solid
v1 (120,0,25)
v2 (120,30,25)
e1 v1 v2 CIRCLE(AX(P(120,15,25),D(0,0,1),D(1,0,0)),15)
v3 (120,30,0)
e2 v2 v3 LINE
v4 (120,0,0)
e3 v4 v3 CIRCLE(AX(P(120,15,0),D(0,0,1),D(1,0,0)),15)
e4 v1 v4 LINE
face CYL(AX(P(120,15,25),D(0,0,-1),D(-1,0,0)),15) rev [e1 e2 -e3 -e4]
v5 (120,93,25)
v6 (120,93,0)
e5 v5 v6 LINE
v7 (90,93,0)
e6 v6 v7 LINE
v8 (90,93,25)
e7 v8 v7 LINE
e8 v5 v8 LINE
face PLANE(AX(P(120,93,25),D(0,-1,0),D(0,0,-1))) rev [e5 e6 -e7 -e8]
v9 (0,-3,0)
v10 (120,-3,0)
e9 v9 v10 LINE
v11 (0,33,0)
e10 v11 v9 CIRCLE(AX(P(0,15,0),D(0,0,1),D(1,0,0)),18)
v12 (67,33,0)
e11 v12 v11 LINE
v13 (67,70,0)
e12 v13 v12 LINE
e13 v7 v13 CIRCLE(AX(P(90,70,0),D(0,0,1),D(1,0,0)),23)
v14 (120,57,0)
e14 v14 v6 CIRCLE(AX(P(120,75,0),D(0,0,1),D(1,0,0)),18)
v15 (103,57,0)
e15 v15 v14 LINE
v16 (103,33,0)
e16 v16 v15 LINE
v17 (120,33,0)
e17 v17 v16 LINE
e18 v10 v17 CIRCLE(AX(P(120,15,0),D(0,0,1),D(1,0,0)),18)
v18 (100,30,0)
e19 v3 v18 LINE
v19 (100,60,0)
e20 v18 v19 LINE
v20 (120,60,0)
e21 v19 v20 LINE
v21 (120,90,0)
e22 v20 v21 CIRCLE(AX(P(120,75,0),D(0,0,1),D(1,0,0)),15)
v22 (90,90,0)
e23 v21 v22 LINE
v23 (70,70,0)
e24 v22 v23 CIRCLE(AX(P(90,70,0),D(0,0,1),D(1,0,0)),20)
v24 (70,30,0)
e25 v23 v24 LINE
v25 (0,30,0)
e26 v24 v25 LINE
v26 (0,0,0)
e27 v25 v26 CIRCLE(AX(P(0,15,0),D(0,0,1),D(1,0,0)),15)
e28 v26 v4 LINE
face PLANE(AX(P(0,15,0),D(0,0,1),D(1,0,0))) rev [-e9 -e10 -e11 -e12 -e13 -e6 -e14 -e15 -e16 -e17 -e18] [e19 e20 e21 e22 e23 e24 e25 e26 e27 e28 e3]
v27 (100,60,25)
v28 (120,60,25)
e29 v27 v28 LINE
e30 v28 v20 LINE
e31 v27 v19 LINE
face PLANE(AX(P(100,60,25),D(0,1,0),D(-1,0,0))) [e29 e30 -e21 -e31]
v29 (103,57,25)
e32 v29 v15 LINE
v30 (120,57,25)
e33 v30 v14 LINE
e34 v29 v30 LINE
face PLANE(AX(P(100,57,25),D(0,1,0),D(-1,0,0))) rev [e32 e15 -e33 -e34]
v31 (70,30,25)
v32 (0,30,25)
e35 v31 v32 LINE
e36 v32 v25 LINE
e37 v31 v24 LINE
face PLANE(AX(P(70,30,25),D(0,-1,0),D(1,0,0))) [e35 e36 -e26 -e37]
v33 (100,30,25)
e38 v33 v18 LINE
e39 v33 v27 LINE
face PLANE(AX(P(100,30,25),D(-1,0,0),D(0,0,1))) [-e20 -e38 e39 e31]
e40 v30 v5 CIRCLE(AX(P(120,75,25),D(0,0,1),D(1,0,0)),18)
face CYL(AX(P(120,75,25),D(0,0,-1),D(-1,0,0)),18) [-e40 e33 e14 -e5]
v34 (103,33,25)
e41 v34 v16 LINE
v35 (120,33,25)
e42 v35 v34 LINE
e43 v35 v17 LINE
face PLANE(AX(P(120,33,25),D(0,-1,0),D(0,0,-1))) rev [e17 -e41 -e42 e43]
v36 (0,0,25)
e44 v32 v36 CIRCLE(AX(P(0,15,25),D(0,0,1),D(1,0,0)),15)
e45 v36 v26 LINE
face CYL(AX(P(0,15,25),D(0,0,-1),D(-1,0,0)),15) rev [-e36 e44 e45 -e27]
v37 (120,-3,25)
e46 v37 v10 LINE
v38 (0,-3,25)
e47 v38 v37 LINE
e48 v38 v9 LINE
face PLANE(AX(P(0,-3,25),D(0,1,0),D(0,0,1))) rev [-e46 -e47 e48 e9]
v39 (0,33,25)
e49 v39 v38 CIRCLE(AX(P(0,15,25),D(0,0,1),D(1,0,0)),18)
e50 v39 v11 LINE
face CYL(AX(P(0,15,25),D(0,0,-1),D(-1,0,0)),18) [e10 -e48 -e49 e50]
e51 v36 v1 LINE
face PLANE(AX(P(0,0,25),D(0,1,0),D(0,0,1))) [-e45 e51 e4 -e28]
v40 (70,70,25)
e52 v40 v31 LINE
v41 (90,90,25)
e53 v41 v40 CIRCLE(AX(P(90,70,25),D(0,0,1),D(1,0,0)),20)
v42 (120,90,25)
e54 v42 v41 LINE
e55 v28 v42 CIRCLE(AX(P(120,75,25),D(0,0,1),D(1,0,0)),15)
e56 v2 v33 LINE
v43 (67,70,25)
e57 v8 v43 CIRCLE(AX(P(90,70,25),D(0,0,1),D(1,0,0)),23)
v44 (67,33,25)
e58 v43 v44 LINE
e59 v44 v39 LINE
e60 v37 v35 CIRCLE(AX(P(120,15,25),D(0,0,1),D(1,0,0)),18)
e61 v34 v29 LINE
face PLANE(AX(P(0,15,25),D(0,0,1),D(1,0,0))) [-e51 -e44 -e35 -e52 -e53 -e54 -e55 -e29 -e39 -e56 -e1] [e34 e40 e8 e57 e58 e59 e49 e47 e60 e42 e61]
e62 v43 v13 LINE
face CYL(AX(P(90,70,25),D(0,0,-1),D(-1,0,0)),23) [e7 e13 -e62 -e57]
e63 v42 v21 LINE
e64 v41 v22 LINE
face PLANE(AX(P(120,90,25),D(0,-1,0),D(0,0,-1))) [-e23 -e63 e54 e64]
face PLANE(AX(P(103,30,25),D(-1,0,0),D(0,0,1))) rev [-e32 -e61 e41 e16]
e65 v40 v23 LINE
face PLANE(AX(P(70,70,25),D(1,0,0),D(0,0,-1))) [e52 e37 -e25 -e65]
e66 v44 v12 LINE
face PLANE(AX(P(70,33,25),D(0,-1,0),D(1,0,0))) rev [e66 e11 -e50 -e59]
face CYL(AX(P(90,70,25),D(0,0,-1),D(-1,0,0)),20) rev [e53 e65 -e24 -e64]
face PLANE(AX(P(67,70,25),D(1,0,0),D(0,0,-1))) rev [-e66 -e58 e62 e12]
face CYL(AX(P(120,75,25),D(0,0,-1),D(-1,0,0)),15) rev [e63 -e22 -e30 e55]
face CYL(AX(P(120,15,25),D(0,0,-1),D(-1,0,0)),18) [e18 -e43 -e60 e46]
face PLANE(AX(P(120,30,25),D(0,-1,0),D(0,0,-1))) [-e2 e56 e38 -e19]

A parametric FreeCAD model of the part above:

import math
import FreeCAD as App
import Part
import Sketcher

V = App.Vector
Q = App.Units.Quantity

doc = App.newDocument("Part")
body = doc.addObject("PartDesign::Body", "Body")

# Sketch on XY plane
sketch1 = doc.addObject("Sketcher::SketchObject", "Sketch")
body.addObject(sketch1)
sketch1.AttachmentSupport = (doc.XY_Plane, [""])
sketch1.MapMode = "FlatFace"
sketch1.addGeometry(Part.LineSegment(V(67, 70, 0), V(67, 33, 0)), False)
sketch1.addGeometry(Part.LineSegment(V(67, 33, 0), V(0, 33, 0)), False)
sketch1.addGeometry(Part.ArcOfCircle(Part.Circle(V(0, 15, 0), V(0, 0, 1), 18), math.radians(90), math.radians(270)), False)
sketch1.addGeometry(Part.LineSegment(V(0, -3, 0), V(120, -3, 0)), False)
sketch1.addGeometry(Part.ArcOfCircle(Part.Circle(V(120, 15, 0), V(0, 0, 1), 18), math.radians(-90), math.radians(90)), False)
sketch1.addGeometry(Part.LineSegment(V(120, 33, 0), V(103, 33, 0)), False)
sketch1.addGeometry(Part.LineSegment(V(103, 33, 0), V(103, 57, 0)), False)
sketch1.addGeometry(Part.LineSegment(V(103, 57, 0), V(120, 57, 0)), False)
sketch1.addGeometry(Part.ArcOfCircle(Part.Circle(V(120, 75, 0), V(0, 0, 1), 18), math.radians(-90), math.radians(90)), False)
sketch1.addGeometry(Part.LineSegment(V(120, 93, 0), V(90, 93, 0)), False)
sketch1.addGeometry(Part.ArcOfCircle(Part.Circle(V(90, 70, 0), V(0, 0, 1), 23), math.radians(90), math.radians(180)), False)
sketch1.addGeometry(Part.LineSegment(V(70, 30, 0), V(70, 70, 0)), False)
sketch1.addGeometry(Part.ArcOfCircle(Part.Circle(V(90, 70, 0), V(0, 0, 1), 20), math.radians(90), math.radians(180)), False)
sketch1.addGeometry(Part.LineSegment(V(90, 90, 0), V(120, 90, 0)), False)
sketch1.addGeometry(Part.ArcOfCircle(Part.Circle(V(120, 75, 0), V(0, 0, 1), 15), math.radians(-90), math.radians(90)), False)
sketch1.addGeometry(Part.LineSegment(V(120, 60, 0), V(100, 60, 0)), False)
sketch1.addGeometry(Part.LineSegment(V(100, 60, 0), V(100, 30, 0)), False)
sketch1.addGeometry(Part.LineSegment(V(100, 30, 0), V(120, 30, 0)), False)
sketch1.addGeometry(Part.ArcOfCircle(Part.Circle(V(120, 15, 0), V(0, 0, 1), 15), math.radians(-90), math.radians(90)), False)
sketch1.addGeometry(Part.LineSegment(V(120, 0, 0), V(0, 0, 0)), False)
sketch1.addGeometry(Part.ArcOfCircle(Part.Circle(V(0, 15, 0), V(0, 0, 1), 15), math.radians(90), math.radians(270)), False)
sketch1.addGeometry(Part.LineSegment(V(0, 30, 0), V(70, 30, 0)), False)
sketch1.addConstraint(Sketcher.Constraint("Coincident", 0, 2, 1, 1))
sketch1.addConstraint(Sketcher.Constraint("Tangent", 1, 2, 2, 1))
sketch1.addConstraint(Sketcher.Constraint("Tangent", 2, 2, 3, 1))
sketch1.addConstraint(Sketcher.Constraint("Tangent", 3, 2, 4, 1))
sketch1.addConstraint(Sketcher.Constraint("Tangent", 4, 2, 5, 1))
sketch1.addConstraint(Sketcher.Constraint("Coincident", 5, 2, 6, 1))
sketch1.addConstraint(Sketcher.Constraint("Coincident", 6, 2, 7, 1))
sketch1.addConstraint(Sketcher.Constraint("Tangent", 7, 2, 8, 1))
sketch1.addConstraint(Sketcher.Constraint("Tangent", 8, 2, 9, 1))
sketch1.addConstraint(Sketcher.Constraint("Tangent", 9, 2, 10, 1))
sketch1.addConstraint(Sketcher.Constraint("Tangent", 10, 2, 0, 1))
sketch1.addConstraint(Sketcher.Constraint("Tangent", 11, 2, 12, 2))
sketch1.addConstraint(Sketcher.Constraint("Tangent", 12, 1, 13, 1))
sketch1.addConstraint(Sketcher.Constraint("Tangent", 13, 2, 14, 2))
sketch1.addConstraint(Sketcher.Constraint("Tangent", 14, 1, 15, 1))
sketch1.addConstraint(Sketcher.Constraint("Coincident", 15, 2, 16, 1))
sketch1.addConstraint(Sketcher.Constraint("Coincident", 16, 2, 17, 1))
sketch1.addConstraint(Sketcher.Constraint("Tangent", 17, 2, 18, 2))
sketch1.addConstraint(Sketcher.Constraint("Tangent", 18, 1, 19, 1))
sketch1.addConstraint(Sketcher.Constraint("Tangent", 19, 2, 20, 2))
sketch1.addConstraint(Sketcher.Constraint("Tangent", 20, 1, 21, 1))
sketch1.addConstraint(Sketcher.Constraint("Coincident", 21, 2, 11, 1))
sketch1.addConstraint(Sketcher.Constraint("Vertical", 0))
sketch1.addConstraint(Sketcher.Constraint("Horizontal", 1))
sketch1.addConstraint(Sketcher.Constraint("Horizontal", 3))
sketch1.addConstraint(Sketcher.Constraint("Horizontal", 5))
sketch1.addConstraint(Sketcher.Constraint("Vertical", 6))
sketch1.addConstraint(Sketcher.Constraint("Horizontal", 7))
sketch1.addConstraint(Sketcher.Constraint("Horizontal", 9))
sketch1.addConstraint(Sketcher.Constraint("Vertical", 11))
sketch1.addConstraint(Sketcher.Constraint("Horizontal", 13))
sketch1.addConstraint(Sketcher.Constraint("Horizontal", 15))
sketch1.addConstraint(Sketcher.Constraint("Vertical", 16))
sketch1.addConstraint(Sketcher.Constraint("Horizontal", 17))
sketch1.addConstraint(Sketcher.Constraint("Horizontal", 19))
sketch1.addConstraint(Sketcher.Constraint("Horizontal", 21))
sketch1.addConstraint(Sketcher.Constraint("Coincident", 19, 2, -1, 1))
sketch1.addConstraint(Sketcher.Constraint("Coincident", 12, 3, 10, 3))
sketch1.addConstraint(Sketcher.Constraint("Coincident", 14, 3, 8, 3))
sketch1.addConstraint(Sketcher.Constraint("Coincident", 18, 3, 4, 3))
sketch1.addConstraint(Sketcher.Constraint("Coincident", 20, 3, 2, 3))
sketch1.addConstraint(Sketcher.Constraint("Equal", 2, 4))
sketch1.addConstraint(Sketcher.Constraint("Equal", 4, 8))
sketch1.addConstraint(Sketcher.Constraint("Equal", 14, 18))
sketch1.addConstraint(Sketcher.Constraint("Vertical", 4, 3, 8, 3))
sketch1.addConstraint(Sketcher.Constraint("Equal", 13, 16))
sketch1.addConstraint(Sketcher.Constraint("Radius", 2, Q("18 mm")))
sketch1.addConstraint(Sketcher.Constraint("Radius", 10, Q("23 mm")))
sketch1.addConstraint(Sketcher.Constraint("Radius", 12, Q("20 mm")))
sketch1.addConstraint(Sketcher.Constraint("DistanceX", 1, 2, 1, 1, Q("67 mm")))
sketch1.addConstraint(Sketcher.Constraint("DistanceX", 3, 1, 3, 2, Q("120 mm")))
sketch1.addConstraint(Sketcher.Constraint("DistanceX", 5, 2, 5, 1, Q("17 mm")))
sketch1.addConstraint(Sketcher.Constraint("DistanceX", 15, 2, 15, 1, Q("20 mm")))
pad1 = doc.addObject("PartDesign::Pad", "Pad")
body.addObject(pad1)
pad1.Profile = sketch1
pad1.Length = 25

doc.recompute()
